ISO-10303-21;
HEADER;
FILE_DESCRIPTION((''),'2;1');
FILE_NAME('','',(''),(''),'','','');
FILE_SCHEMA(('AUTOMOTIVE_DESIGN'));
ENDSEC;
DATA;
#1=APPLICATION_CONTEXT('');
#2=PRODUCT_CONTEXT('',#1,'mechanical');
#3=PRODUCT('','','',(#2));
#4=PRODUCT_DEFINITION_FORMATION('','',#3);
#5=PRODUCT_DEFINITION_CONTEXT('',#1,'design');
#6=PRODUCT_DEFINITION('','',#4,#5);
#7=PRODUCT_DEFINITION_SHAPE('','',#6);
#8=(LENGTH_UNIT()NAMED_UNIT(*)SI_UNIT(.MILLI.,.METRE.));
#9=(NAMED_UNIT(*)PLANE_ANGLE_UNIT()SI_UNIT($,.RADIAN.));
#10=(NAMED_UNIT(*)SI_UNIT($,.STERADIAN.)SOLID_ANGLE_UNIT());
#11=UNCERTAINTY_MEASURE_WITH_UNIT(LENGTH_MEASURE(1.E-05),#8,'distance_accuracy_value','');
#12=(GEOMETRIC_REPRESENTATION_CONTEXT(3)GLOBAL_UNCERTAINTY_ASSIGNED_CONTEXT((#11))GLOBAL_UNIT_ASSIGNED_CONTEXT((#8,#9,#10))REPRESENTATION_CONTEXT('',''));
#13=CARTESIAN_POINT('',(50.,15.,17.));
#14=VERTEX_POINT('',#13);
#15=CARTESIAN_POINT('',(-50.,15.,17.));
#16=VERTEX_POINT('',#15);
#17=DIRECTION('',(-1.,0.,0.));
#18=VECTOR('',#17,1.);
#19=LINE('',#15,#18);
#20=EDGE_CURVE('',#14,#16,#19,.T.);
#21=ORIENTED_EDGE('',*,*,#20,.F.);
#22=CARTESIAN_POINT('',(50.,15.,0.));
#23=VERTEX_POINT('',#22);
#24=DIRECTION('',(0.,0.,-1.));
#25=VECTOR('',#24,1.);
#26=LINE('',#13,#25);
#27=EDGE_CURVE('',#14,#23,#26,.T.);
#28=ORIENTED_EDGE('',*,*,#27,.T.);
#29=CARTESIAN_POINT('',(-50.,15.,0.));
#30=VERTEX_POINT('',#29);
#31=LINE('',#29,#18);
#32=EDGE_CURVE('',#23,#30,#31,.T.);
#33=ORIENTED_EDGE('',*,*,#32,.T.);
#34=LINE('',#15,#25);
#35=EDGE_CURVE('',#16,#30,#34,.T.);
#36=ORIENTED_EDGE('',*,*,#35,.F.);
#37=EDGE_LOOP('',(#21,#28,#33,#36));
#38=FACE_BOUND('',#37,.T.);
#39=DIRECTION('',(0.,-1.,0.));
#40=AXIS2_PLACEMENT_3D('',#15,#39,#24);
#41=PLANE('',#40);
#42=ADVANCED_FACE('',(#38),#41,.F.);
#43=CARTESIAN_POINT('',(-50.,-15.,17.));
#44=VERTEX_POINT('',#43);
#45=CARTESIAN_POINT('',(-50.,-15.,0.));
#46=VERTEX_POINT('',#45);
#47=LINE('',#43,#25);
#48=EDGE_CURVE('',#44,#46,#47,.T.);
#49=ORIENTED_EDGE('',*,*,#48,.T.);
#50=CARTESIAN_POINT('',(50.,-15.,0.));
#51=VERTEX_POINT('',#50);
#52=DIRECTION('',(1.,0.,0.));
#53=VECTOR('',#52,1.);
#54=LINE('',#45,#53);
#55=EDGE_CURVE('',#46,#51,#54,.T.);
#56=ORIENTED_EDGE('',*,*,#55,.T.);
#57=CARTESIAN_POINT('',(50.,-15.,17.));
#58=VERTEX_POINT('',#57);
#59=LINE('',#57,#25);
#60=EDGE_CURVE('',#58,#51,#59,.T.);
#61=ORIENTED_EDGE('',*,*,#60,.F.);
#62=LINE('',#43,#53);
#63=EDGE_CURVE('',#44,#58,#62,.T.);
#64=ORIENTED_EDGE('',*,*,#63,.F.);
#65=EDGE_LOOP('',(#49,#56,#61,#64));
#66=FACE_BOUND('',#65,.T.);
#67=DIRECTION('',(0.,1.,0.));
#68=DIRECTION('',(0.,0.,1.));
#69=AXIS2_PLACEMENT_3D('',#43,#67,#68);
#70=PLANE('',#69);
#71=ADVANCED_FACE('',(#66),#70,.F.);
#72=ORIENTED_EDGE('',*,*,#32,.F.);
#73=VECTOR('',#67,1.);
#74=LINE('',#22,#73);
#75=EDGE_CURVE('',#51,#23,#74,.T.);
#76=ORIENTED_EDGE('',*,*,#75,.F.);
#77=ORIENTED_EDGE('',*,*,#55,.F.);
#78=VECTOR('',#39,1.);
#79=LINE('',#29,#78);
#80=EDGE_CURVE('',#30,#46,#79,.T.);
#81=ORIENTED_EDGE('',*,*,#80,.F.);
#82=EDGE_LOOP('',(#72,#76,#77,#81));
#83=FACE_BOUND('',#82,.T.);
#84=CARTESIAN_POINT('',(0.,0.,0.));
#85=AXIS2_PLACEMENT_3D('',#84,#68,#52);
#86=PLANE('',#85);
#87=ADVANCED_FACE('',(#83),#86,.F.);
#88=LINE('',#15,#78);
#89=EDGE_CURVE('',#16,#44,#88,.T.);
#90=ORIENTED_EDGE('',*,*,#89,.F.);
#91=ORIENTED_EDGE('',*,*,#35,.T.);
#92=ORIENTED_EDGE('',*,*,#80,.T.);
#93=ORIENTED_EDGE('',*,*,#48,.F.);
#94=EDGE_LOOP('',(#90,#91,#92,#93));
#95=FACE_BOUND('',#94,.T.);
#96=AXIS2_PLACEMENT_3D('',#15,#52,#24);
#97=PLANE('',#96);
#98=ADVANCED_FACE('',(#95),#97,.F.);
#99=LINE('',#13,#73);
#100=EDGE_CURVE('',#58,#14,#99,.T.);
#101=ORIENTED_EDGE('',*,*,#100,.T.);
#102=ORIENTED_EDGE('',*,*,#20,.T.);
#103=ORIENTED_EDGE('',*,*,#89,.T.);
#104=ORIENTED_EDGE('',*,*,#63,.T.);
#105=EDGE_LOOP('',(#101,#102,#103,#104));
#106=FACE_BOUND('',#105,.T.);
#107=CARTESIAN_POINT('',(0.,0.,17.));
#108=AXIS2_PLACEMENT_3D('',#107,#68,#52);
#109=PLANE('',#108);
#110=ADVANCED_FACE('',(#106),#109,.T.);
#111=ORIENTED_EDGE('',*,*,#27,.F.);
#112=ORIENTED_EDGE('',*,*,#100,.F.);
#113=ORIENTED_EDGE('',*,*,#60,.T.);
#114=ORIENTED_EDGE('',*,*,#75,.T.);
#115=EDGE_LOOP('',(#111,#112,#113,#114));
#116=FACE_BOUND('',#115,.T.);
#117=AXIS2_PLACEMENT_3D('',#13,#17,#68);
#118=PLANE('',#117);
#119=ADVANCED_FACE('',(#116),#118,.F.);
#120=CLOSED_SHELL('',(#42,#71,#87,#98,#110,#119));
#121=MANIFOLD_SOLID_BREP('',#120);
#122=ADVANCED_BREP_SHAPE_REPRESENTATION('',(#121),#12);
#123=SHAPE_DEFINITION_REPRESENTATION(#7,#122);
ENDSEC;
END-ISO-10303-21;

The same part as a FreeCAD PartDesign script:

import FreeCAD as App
import Part
import Sketcher

V = App.Vector
Q = App.Units.Quantity


def add_polygon(sketch, points):
    """Adds a closed chain of lines whose ends are joined by coincident constraints."""
    first, n = sketch.GeometryCount, len(points)
    for a, b in zip(points, points[1:] + points[:1]):
        sketch.addGeometry(Part.LineSegment(App.Vector(*a, 0), App.Vector(*b, 0)), False)
    for i in range(n):
        sketch.addConstraint(Sketcher.Constraint("Coincident", first + i, 2, first + (i + 1) % n, 1))

doc = App.newDocument("Part")
body = doc.addObject("PartDesign::Body", "Body")

# Sketch on XY plane
sketch1 = body.newObject("Sketcher::SketchObject", "Sketch")
sketch1.AttachmentSupport = (doc.getObject("XY_Plane"), [""])
sketch1.MapMode = "FlatFace"
add_polygon(sketch1, [(-50, 15), (-50, -15), (50, -15), (50, 15)])  # lines 0-3
sketch1.addConstraint(Sketcher.Constraint("Vertical", 0))
sketch1.addConstraint(Sketcher.Constraint("Horizontal", 1))
sketch1.addConstraint(Sketcher.Constraint("Vertical", 2))
sketch1.addConstraint(Sketcher.Constraint("Horizontal", 3))
sketch1.addConstraint(Sketcher.Constraint("Symmetric", 0, 2, 2, 2, -1, 1))
sketch1.addConstraint(Sketcher.Constraint("DistanceX", 1, 1, 1, 2, Q("100 mm")))
sketch1.addConstraint(Sketcher.Constraint("DistanceY", 0, 2, 0, 1, Q("30 mm")))
pad1 = body.newObject("PartDesign::Pad", "Pad")
pad1.Profile = sketch1
pad1.Length = 17

doc.recompute()
